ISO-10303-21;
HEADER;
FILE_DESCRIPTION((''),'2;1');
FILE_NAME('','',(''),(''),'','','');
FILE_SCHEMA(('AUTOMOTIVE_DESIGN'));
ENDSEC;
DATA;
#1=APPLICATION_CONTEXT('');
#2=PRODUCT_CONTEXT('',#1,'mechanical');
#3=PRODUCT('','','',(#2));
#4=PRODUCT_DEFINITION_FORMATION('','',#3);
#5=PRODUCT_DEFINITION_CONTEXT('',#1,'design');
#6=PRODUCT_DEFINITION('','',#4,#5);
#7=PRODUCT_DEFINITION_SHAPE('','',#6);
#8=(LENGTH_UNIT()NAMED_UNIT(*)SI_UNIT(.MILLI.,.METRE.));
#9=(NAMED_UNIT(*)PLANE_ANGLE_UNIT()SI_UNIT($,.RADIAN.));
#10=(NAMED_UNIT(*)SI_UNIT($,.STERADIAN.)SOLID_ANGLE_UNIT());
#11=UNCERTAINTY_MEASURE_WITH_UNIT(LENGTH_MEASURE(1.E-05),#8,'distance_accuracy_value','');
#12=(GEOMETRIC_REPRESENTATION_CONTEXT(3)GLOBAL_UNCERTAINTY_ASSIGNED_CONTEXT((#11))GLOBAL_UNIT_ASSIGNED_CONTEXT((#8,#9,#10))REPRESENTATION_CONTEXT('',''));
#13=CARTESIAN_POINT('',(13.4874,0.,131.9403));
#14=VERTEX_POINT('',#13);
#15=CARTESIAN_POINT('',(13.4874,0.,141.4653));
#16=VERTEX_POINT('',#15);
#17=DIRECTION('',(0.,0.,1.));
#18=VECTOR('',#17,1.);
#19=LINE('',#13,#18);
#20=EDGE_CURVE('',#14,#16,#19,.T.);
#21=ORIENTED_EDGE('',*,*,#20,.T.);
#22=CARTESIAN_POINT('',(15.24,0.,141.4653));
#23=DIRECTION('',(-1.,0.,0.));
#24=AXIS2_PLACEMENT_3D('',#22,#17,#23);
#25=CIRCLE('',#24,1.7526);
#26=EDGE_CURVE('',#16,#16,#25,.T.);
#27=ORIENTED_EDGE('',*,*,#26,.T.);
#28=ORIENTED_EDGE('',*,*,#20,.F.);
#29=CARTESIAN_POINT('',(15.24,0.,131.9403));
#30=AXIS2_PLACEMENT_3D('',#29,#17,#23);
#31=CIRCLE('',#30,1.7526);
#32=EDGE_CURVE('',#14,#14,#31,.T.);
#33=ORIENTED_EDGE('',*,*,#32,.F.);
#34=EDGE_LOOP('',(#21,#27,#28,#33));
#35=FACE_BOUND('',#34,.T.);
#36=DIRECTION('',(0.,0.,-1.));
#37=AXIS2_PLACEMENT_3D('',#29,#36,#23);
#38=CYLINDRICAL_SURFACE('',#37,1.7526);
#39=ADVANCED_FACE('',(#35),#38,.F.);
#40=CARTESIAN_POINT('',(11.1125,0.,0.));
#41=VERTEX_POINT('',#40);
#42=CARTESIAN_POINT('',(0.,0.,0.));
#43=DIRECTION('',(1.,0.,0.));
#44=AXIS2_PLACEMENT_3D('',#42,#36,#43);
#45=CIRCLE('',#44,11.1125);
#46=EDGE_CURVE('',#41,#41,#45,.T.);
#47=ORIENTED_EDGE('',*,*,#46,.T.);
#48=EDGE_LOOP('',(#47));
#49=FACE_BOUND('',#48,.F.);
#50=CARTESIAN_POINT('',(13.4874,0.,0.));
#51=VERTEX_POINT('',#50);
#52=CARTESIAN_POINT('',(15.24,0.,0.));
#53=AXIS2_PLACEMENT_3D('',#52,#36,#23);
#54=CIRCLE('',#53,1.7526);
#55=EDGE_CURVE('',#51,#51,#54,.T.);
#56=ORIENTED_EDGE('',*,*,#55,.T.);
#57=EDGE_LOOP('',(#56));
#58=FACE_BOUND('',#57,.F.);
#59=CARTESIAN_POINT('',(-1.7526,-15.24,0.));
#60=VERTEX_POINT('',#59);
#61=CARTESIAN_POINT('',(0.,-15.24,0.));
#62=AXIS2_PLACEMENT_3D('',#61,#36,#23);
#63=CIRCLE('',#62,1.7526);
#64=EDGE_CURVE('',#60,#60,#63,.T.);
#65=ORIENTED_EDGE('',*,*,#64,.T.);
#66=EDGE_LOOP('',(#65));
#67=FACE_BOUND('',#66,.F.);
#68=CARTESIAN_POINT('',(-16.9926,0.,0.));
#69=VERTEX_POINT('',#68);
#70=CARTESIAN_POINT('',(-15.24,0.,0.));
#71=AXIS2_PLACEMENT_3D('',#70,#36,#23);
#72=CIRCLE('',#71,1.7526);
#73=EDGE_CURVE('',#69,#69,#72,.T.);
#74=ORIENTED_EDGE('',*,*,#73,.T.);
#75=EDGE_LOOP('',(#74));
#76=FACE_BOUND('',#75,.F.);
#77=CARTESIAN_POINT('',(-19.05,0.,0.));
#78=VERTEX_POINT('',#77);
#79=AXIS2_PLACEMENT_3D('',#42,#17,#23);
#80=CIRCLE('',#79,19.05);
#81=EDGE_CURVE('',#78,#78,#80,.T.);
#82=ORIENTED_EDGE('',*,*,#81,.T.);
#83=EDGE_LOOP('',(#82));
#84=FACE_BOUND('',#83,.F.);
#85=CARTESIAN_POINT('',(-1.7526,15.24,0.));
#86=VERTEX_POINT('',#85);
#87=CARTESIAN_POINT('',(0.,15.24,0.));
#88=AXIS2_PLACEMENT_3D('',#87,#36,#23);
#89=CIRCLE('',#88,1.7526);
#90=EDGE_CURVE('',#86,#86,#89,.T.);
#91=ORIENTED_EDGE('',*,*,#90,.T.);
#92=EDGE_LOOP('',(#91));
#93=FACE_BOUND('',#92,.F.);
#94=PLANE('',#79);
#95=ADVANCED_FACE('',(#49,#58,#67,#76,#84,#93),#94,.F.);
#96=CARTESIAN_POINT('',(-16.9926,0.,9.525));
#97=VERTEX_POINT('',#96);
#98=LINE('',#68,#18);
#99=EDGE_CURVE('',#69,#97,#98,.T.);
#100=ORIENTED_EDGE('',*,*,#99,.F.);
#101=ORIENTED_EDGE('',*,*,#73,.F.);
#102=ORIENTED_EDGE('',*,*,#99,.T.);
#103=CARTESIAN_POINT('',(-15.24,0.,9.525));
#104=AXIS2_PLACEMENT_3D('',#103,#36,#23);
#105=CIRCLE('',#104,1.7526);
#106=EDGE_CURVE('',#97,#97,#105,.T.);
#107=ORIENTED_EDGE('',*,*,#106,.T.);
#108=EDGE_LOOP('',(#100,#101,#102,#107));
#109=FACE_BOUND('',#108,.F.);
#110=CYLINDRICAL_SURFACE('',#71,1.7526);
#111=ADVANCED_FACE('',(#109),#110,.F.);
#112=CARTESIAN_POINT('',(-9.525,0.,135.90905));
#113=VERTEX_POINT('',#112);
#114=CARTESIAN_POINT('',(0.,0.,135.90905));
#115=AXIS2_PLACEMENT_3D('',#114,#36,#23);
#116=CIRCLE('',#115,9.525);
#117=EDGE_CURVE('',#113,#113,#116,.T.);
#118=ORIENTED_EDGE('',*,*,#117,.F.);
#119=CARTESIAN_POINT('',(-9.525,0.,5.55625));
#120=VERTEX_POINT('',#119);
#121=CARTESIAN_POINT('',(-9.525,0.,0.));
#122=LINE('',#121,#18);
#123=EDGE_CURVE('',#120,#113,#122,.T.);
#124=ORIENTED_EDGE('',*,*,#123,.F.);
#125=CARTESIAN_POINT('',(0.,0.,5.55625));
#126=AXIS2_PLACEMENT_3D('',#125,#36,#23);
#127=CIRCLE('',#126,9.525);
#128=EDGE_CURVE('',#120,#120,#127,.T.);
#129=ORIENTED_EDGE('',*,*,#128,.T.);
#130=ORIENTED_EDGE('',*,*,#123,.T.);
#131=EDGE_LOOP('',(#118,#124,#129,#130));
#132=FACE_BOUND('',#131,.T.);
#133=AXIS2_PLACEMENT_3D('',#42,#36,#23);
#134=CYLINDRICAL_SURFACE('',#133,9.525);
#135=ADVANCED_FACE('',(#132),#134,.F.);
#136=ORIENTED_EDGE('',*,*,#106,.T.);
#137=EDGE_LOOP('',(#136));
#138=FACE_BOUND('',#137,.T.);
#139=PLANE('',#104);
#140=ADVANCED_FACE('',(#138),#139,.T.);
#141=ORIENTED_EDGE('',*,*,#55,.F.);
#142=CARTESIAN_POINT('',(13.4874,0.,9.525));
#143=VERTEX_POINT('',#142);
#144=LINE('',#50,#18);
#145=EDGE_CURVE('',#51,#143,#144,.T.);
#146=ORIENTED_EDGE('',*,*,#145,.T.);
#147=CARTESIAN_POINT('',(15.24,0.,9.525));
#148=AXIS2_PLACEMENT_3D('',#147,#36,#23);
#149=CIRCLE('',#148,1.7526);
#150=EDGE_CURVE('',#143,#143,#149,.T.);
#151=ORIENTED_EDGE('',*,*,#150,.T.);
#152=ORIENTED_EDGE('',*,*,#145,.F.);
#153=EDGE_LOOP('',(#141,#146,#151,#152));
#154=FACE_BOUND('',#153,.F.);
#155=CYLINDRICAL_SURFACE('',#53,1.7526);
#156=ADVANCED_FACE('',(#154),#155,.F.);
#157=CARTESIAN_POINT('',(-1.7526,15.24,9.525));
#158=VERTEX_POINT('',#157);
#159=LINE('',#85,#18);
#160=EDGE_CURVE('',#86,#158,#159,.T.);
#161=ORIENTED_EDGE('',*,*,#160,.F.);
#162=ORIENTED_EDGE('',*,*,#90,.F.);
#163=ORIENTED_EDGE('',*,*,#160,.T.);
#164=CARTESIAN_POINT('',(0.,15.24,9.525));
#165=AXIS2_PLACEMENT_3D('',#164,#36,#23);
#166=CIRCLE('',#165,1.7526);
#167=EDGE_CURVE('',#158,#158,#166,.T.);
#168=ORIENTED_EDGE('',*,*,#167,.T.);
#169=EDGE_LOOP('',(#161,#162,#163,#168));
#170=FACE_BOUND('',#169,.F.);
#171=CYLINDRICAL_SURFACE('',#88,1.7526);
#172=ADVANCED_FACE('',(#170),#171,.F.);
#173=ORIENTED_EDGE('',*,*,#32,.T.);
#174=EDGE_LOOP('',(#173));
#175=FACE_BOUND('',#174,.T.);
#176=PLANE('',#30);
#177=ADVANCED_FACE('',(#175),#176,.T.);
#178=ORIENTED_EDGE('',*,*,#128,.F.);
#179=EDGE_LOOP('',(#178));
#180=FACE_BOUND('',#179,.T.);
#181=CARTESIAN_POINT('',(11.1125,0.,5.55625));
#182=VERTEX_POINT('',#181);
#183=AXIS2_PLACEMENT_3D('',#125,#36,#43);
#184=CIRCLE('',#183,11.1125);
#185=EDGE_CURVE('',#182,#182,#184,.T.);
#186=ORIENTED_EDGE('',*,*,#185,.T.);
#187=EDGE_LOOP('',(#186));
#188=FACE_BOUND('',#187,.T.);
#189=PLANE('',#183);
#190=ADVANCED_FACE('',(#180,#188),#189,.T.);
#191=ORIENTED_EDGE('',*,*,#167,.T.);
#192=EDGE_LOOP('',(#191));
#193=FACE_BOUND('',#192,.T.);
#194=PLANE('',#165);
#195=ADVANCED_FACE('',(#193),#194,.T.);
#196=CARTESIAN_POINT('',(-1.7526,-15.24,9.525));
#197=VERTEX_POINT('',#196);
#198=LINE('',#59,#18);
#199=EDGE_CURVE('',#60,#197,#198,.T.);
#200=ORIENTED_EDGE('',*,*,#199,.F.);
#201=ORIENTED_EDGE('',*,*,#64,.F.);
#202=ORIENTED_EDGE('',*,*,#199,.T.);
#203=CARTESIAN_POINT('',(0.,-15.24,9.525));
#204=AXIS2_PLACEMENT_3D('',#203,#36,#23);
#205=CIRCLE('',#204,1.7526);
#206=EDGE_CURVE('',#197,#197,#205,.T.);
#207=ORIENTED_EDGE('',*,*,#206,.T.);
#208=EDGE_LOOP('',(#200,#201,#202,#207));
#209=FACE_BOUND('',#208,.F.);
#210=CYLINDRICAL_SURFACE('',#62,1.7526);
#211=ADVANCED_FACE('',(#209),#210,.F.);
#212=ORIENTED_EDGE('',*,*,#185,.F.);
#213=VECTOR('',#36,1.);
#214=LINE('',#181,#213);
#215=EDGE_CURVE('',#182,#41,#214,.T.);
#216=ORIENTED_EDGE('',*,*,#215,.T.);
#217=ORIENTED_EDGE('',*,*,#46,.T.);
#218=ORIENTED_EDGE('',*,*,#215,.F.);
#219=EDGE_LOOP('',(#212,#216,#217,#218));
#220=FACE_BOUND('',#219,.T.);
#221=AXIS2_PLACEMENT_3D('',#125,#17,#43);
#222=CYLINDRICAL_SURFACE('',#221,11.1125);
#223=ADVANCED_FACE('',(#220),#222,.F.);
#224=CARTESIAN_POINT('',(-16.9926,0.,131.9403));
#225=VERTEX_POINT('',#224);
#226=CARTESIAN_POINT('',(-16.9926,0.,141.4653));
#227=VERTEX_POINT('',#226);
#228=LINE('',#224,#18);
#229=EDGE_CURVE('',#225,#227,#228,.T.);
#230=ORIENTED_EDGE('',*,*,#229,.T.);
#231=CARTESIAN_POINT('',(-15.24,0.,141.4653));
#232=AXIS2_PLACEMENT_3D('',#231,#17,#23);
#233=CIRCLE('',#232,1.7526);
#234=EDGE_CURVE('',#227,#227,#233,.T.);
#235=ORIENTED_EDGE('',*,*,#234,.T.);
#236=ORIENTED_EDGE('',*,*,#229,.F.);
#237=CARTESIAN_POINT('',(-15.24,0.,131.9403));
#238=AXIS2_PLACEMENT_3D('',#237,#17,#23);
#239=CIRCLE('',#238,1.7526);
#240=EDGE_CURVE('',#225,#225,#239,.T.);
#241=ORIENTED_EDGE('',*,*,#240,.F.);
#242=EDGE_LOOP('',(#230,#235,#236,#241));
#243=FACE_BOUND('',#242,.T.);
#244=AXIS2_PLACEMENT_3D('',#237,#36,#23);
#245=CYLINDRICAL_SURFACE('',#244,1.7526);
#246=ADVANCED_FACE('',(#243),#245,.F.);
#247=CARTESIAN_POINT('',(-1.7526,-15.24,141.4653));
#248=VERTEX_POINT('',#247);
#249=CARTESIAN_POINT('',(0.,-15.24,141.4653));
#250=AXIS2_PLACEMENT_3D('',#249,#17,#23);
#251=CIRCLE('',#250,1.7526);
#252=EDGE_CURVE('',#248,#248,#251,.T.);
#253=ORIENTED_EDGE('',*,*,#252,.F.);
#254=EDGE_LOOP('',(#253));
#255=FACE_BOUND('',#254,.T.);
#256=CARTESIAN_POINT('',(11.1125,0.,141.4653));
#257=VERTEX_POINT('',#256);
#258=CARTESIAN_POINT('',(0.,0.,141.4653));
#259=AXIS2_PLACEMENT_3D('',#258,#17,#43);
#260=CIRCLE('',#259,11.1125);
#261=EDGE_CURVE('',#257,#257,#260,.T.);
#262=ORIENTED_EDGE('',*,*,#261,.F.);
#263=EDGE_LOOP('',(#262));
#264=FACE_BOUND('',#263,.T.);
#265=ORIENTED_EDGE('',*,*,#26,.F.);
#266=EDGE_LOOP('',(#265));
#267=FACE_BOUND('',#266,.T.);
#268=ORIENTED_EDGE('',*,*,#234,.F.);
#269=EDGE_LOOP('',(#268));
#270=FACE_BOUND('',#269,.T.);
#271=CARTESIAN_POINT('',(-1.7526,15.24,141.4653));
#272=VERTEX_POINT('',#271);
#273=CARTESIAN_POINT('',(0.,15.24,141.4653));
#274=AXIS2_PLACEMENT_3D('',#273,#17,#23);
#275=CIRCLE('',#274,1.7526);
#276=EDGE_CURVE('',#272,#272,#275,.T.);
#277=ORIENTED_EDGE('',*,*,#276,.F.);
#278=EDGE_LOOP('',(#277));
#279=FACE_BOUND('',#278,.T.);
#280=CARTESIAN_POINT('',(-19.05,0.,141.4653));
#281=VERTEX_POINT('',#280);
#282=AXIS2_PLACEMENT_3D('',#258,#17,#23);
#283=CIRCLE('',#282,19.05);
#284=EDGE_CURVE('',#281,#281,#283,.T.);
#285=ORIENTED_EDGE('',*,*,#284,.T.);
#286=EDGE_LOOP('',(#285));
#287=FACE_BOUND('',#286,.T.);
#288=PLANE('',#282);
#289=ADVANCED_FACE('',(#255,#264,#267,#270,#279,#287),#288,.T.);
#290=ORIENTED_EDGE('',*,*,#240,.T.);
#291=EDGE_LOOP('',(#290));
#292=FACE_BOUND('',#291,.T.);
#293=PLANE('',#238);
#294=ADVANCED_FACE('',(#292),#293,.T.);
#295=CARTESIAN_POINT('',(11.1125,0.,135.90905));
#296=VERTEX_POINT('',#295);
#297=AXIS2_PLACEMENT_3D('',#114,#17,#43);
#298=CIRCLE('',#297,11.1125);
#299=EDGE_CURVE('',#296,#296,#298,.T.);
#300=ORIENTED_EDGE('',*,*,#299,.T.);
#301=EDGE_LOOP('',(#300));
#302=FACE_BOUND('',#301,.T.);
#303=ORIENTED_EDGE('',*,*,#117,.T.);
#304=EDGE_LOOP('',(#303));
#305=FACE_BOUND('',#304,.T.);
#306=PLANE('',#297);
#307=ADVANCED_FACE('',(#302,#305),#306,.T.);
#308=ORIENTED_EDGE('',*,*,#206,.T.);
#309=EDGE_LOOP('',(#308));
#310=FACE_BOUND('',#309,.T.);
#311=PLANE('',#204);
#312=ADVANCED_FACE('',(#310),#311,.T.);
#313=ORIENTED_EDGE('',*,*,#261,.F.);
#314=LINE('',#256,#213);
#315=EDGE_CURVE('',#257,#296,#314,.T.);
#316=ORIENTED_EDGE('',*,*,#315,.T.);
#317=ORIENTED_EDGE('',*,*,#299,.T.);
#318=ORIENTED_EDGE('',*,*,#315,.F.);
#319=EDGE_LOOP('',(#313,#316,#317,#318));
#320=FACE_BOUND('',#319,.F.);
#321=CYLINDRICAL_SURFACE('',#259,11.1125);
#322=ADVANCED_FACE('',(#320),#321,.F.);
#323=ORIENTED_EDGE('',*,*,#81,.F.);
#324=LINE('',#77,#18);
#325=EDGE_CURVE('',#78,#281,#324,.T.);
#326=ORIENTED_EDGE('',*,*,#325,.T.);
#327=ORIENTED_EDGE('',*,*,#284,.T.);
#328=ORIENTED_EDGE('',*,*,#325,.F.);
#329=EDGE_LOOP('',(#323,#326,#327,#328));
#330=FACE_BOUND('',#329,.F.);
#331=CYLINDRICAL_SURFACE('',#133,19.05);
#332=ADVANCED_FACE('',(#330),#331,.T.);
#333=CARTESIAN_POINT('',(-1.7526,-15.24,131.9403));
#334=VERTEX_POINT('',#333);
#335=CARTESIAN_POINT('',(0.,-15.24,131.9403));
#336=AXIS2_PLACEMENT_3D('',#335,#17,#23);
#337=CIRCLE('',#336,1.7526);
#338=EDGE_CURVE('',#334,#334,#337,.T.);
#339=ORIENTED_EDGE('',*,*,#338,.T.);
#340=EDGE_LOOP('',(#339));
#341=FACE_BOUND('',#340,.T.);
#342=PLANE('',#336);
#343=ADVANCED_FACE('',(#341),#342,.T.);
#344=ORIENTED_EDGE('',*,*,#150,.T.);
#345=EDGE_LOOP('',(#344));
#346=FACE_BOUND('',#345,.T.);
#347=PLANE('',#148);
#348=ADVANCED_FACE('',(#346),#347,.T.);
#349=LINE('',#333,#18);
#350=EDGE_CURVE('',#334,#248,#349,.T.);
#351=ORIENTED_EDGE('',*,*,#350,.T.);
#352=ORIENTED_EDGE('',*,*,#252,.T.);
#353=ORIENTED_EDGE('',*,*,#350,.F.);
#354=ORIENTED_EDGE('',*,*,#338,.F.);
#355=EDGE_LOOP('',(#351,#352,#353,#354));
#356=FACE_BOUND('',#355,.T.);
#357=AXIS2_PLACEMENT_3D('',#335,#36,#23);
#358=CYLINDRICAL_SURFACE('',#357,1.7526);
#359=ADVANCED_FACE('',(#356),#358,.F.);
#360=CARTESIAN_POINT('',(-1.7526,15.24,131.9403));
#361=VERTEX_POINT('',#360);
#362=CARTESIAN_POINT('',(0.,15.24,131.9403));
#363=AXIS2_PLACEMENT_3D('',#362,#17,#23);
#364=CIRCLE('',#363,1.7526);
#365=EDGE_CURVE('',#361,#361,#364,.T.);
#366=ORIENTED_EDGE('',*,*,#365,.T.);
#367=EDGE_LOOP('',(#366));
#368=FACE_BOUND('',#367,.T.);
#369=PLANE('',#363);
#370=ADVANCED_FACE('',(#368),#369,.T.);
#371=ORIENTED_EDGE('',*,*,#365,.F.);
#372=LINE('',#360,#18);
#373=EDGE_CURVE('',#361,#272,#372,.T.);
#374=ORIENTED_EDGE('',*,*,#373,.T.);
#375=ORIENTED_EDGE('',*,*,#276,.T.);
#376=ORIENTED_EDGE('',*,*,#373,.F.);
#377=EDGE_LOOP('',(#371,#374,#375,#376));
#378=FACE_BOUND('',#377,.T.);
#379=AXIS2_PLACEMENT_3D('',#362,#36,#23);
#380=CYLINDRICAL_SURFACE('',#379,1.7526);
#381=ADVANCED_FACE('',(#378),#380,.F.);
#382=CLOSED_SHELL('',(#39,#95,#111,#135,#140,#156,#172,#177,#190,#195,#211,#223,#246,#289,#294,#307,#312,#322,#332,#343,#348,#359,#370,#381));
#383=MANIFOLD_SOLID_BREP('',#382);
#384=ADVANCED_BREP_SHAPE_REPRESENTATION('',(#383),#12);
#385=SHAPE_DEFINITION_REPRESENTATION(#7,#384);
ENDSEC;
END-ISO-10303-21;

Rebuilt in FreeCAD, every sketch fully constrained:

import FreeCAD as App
import Part
import Sketcher
from FreeCAD import Vector
Q = App.Units.Quantity

doc = App.newDocument("Part")
body = doc.addObject("PartDesign::Body", "Body")

sketch1 = body.newObject("Sketcher::SketchObject", "Sketch")
sketch1.AttachmentSupport = (doc.getObject("XY_Plane"), [""])
sketch1.MapMode = "FlatFace"
sketch1.addGeometry([
    Part.Circle(Vector(0, 0, 0), Vector(0, 0, 1), 19),
    Part.Circle(Vector(0, 0, 0), Vector(0, 0, 1), 10),
], False)
sketch1.addConstraint([
    Sketcher.Constraint("Coincident", 0, 3, -1, 1),
    Sketcher.Constraint("Coincident", 1, 3, -1, 1),
    Sketcher.Constraint("Diameter", 0, Q("1.5 in")),
    Sketcher.Constraint("Diameter", 1, Q("0.75 in")),
])
pad1 = body.newObject("PartDesign::Pad", "Pad")
pad1.Profile = sketch1
pad1.Length = Q("5.5695 in")

sketch2 = body.newObject("Sketcher::SketchObject", "Sketch001")
sketch2.AttachmentSupport = (doc.getObject("XY_Plane"), [""])
sketch2.MapMode = "FlatFace"
sketch2.addGeometry([
    Part.Circle(Vector(0, 15.2, 0), Vector(0, 0, 1), 1.8),
    Part.Circle(Vector(-15.2, 0, 0), Vector(0, 0, 1), 1.8),
    Part.Circle(Vector(0, -15.2, 0), Vector(0, 0, 1), 1.8),
    Part.Circle(Vector(15.2, 0, 0), Vector(0, 0, 1), 1.8),
], False)
sketch2.addConstraint([
    Sketcher.Constraint("Equal", 0, 1),
    Sketcher.Constraint("Equal", 1, 2),
    Sketcher.Constraint("Equal", 2, 3),
    Sketcher.Constraint("Symmetric", 0, 3, 2, 3, -1, 1),
    Sketcher.Constraint("Symmetric", 1, 3, 3, 3, -1, 1),
    Sketcher.Constraint("PointOnObject", 0, 3, -2),
    Sketcher.Constraint("PointOnObject", 1, 3, -1),
    Sketcher.Constraint("Diameter", 0, Q("0.138 in")),
    Sketcher.Constraint("DistanceY", -1, 1, 0, 3, Q("0.6 in")),
    Sketcher.Constraint("DistanceX", 1, 3, -1, 1, Q("0.6 in")),
])
pocket1 = body.newObject("PartDesign::Pocket", "Pocket")
pocket1.Profile = sketch2
pocket1.Length = Q("0.375 in")
pocket1.Reversed = True

sketch3 = body.newObject("Sketcher::SketchObject", "Sketch002")
sketch3.AttachmentSupport = (doc.getObject("XY_Plane"), [""])
sketch3.MapMode = "FlatFace"
sketch3.AttachmentOffset = App.Placement(Vector(0, 0, 5.1945 * 25.4), App.Rotation())
sketch3.addGeometry([
    Part.Circle(Vector(0, 15.2, 0), Vector(0, 0, 1), 1.8),
    Part.Circle(Vector(15.2, 0, 0), Vector(0, 0, 1), 1.8),
    Part.Circle(Vector(0, -15.2, 0), Vector(0, 0, 1), 1.8),
    Part.Circle(Vector(-15.2, 0, 0), Vector(0, 0, 1), 1.8),
], False)
sketch3.addConstraint([
    Sketcher.Constraint("Equal", 0, 1),
    Sketcher.Constraint("Equal", 1, 2),
    Sketcher.Constraint("Equal", 2, 3),
    Sketcher.Constraint("Symmetric", 0, 3, 2, 3, -1, 1),
    Sketcher.Constraint("Symmetric", 1, 3, 3, 3, -1, 1),
    Sketcher.Constraint("PointOnObject", 0, 3, -2),
    Sketcher.Constraint("PointOnObject", 1, 3, -1),
    Sketcher.Constraint("Diameter", 0, Q("0.138 in")),
    Sketcher.Constraint("DistanceY", -1, 1, 0, 3, Q("0.6 in")),
    Sketcher.Constraint("DistanceX", -1, 1, 1, 3, Q("0.6 in")),
])
pocket2 = body.newObject("PartDesign::Pocket", "Pocket001")
pocket2.Profile = sketch3
pocket2.Length = Q("0.375 in")
pocket2.Reversed = True

sketch4 = body.newObject("Sketcher::SketchObject", "Sketch003")
sketch4.AttachmentSupport = (doc.getObject("XY_Plane"), [""])
sketch4.MapMode = "FlatFace"
sketch4.AttachmentOffset = App.Placement(Vector(0, 0, 5.5695 * 25.4), App.Rotation())
sketch4.addGeometry(Part.Circle(Vector(0, 0, 0), Vector(0, 0, 1), 11), False)
sketch4.addConstraint([
    Sketcher.Constraint("Coincident", 0, 3, -1, 1),
    Sketcher.Constraint("Diameter", 0, Q("0.875 in")),
])
pocket3 = body.newObject("PartDesign::Pocket", "Pocket002")
pocket3.Profile = sketch4
pocket3.Length = Q("0.21875 in")

sketch5 = body.newObject("Sketcher::SketchObject", "Sketch004")
sketch5.AttachmentSupport = (doc.getObject("XY_Plane"), [""])
sketch5.MapMode = "FlatFace"
sketch5.AttachmentOffset = App.Placement(Vector(0, 0, 0.21875 * 25.4), App.Rotation())
sketch5.addGeometry(Part.Circle(Vector(0, 0, 0), Vector(0, 0, 1), 11), False)
sketch5.addConstraint([
    Sketcher.Constraint("Coincident", 0, 3, -1, 1),
    Sketcher.Constraint("Diameter", 0, Q("0.875 in")),
])
pocket4 = body.newObject("PartDesign::Pocket", "Pocket003")
pocket4.Profile = sketch5
pocket4.Length = Q("0.21875 in")

doc.recompute()
